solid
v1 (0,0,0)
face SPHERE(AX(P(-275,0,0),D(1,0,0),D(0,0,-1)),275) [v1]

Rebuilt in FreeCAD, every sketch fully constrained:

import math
import FreeCAD as App
import Part
import Sketcher

doc = App.newDocument("Part")
body = doc.addObject("PartDesign::Body", "Body")

sketch1 = body.newObject("Sketcher::SketchObject", "Sketch")
sketch1.AttachmentSupport = (doc.getObject("XZ_Plane"), [""])
sketch1.MapMode = "FlatFace"
sketch1.addGeometry([
    Part.LineSegment(App.Vector(-550, 0, 0), App.Vector(0, 0, 0)),
    Part.ArcOfCircle(Part.Circle(App.Vector(-275, 0, 0), App.Vector(0, 0, 1), 275), math.radians(180), math.radians(360)),
], False)
sketch1.addConstraint([
    Sketcher.Constraint("Coincident", 0, 1, 1, 1),
    Sketcher.Constraint("Coincident", 1, 2, 0, 2),
    Sketcher.Constraint("Horizontal", 0),
    Sketcher.Constraint("Coincident", 1, 2, -1, 1),
    Sketcher.Constraint("PointOnObject", 1, 3, -1),
    Sketcher.Constraint("Radius", 1, 275.0),
])
revolution = body.newObject("PartDesign::Revolution", "Revolution")
revolution.Profile = sketch1
revolution.ReferenceAxis = (sketch1, ["H_Axis"])
revolution.Angle = 360

doc.recompute()
